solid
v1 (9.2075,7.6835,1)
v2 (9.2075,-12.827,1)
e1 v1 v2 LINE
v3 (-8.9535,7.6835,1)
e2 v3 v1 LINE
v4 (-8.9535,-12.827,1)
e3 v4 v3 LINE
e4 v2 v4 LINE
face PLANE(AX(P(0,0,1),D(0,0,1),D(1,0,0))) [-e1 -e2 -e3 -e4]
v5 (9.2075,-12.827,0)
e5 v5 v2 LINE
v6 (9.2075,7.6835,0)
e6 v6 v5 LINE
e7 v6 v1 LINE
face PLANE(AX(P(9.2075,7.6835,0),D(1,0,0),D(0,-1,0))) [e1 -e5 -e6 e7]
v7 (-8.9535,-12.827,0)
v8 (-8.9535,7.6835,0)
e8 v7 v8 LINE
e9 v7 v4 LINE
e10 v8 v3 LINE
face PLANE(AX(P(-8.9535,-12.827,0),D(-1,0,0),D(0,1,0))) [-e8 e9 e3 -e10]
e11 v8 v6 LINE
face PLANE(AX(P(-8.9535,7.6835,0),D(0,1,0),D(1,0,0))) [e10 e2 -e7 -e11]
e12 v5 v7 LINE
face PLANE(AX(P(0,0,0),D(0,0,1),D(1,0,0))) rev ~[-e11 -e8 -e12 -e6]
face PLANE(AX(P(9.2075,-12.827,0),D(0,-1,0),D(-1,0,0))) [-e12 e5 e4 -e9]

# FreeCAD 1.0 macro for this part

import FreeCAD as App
import Part
import Sketcher

doc = App.newDocument("Part")
body = doc.addObject("PartDesign::Body", "Body")

sketch1 = body.newObject("Sketcher::SketchObject", "Sketch")
sketch1.AttachmentSupport = (doc.getObject("XY_Plane"), [""])
sketch1.MapMode = "FlatFace"
sketch1.addGeometry(Part.LineSegment(App.Vector(9, 8, 0), App.Vector(-9, 8, 0)), False)
sketch1.addGeometry(Part.LineSegment(App.Vector(-9, 8, 0), App.Vector(-9, -13, 0)), False)
sketch1.addGeometry(Part.LineSegment(App.Vector(-9, -13, 0), App.Vector(9, -13, 0)), False)
sketch1.addGeometry(Part.LineSegment(App.Vector(9, -13, 0), App.Vector(9, 8, 0)), False)
sketch1.addConstraint(Sketcher.Constraint("Coincident", 0, 2, 1, 1))
sketch1.addConstraint(Sketcher.Constraint("Coincident", 1, 2, 2, 1))
sketch1.addConstraint(Sketcher.Constraint("Coincident", 2, 2, 3, 1))
sketch1.addConstraint(Sketcher.Constraint("Coincident", 3, 2, 0, 1))
sketch1.addConstraint(Sketcher.Constraint("Horizontal", 0))
sketch1.addConstraint(Sketcher.Constraint("Vertical", 1))
sketch1.addConstraint(Sketcher.Constraint("Horizontal", 2))
sketch1.addConstraint(Sketcher.Constraint("Vertical", 3))
sketch1.addConstraint(Sketcher.Constraint("DistanceX", 0, 2, 0, 1, 18.161))
sketch1.addConstraint(Sketcher.Constraint("DistanceY", 1, 2, 1, 1, 20.5105))
sketch1.addConstraint(Sketcher.Constraint("DistanceY", 1, 2, -1, 1, 12.827))
sketch1.addConstraint(Sketcher.Constraint("DistanceX", 0, 2, -1, 1, 8.9535))
pad1 = body.newObject("PartDesign::Pad", "Pad")
pad1.Profile = sketch1
pad1.Length = 1

doc.recompute()
